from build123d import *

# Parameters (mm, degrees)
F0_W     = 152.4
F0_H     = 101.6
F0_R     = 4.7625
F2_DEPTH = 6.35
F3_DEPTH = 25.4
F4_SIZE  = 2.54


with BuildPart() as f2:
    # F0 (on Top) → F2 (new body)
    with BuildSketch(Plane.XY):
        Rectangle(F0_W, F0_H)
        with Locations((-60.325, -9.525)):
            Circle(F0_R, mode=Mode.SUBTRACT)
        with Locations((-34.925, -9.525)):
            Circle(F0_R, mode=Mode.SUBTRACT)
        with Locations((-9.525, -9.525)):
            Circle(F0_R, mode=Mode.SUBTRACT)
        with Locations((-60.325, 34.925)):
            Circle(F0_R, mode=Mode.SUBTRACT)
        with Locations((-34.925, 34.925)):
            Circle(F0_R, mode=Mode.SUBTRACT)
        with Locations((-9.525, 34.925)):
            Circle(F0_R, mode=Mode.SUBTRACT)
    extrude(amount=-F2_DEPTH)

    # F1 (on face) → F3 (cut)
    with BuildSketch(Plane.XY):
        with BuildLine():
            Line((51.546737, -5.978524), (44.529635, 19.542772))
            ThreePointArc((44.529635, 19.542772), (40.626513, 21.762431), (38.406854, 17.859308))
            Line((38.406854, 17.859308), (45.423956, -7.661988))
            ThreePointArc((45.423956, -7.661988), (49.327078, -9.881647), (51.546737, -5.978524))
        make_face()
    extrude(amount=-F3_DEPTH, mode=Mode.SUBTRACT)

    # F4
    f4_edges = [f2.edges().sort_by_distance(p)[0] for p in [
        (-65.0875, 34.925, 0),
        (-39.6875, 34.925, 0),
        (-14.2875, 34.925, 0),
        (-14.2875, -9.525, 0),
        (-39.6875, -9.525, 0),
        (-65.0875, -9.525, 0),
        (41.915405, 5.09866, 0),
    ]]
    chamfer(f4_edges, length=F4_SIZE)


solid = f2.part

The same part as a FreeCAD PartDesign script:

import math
import FreeCAD as App
import Part
import Sketcher
from FreeCAD import Vector
Q = App.Units.Quantity


def edges_at(feature, points):
    """Names of the edges that pass closest to the given points."""
    edges = feature.Shape.Edges
    near = lambda p: min(range(len(edges)), key=lambda i: edges[i].distToShape(Part.Vertex(*p))[0])
    return sorted({f"Edge{near(p) + 1}" for p in points})

doc = App.newDocument("Part")
params = doc.addObject("Spreadsheet::Sheet", "Params")
for row, (alias, value) in enumerate([
    ("sketch1_width", "6 in"),
    ("sketch1_height", "4 in"),
    ("sketch1_diameter", "0.375 in"),
    ("pad1_length", "0.25 in"),
    ("sketch2_radius", "0.125 in"),
    ("pocket1_length", "1 in"),
    ("chamfer_size", "0.1 in"),
], start=1):
    params.set(f"A{row}", alias)
    params.set(f"B{row}", "=" + value)
    params.setAlias(f"B{row}", alias)

body = doc.addObject("PartDesign::Body", "Body")

# Sketch on XY plane
sketch1 = doc.addObject("Sketcher::SketchObject", "Sketch")
body.addObject(sketch1)
sketch1.AttachmentSupport = (doc.XY_Plane, [""])
sketch1.MapMode = "FlatFace"
sketch1.addGeometry([
    Part.LineSegment(Vector(-76.2, 50.8, 0), Vector(-76.2, -50.8, 0)),  # 0
    Part.LineSegment(Vector(-76.2, -50.8, 0), Vector(76.2, -50.8, 0)),  # 1
    Part.LineSegment(Vector(76.2, -50.8, 0), Vector(76.2, 50.8, 0)),  # 2
    Part.LineSegment(Vector(76.2, 50.8, 0), Vector(-76.2, 50.8, 0)),  # 3
    Part.Circle(Vector(-60.325, -9.525, 0), Vector(0, 0, 1), 4.7625),  # 4
    Part.Circle(Vector(-34.925, -9.525, 0), Vector(0, 0, 1), 4.7625),  # 5
    Part.Circle(Vector(-9.525, -9.525, 0), Vector(0, 0, 1), 4.7625),  # 6
    Part.Circle(Vector(-60.325, 34.925, 0), Vector(0, 0, 1), 4.7625),  # 7
    Part.Circle(Vector(-34.925, 34.925, 0), Vector(0, 0, 1), 4.7625),  # 8
    Part.Circle(Vector(-9.525, 34.925, 0), Vector(0, 0, 1), 4.7625),  # 9
], False)
sketch1.addConstraint([
    Sketcher.Constraint("Coincident", 0, 2, 1, 1),
    Sketcher.Constraint("Coincident", 1, 2, 2, 1),
    Sketcher.Constraint("Coincident", 2, 2, 3, 1),
    Sketcher.Constraint("Coincident", 3, 2, 0, 1),
    Sketcher.Constraint("Vertical", 0),
    Sketcher.Constraint("Horizontal", 1),
    Sketcher.Constraint("Vertical", 2),
    Sketcher.Constraint("Horizontal", 3),
    Sketcher.Constraint("Equal", 4, 5),
    Sketcher.Constraint("Equal", 5, 6),
    Sketcher.Constraint("Equal", 6, 7),
    Sketcher.Constraint("Equal", 7, 8),
    Sketcher.Constraint("Equal", 8, 9),
    Sketcher.Constraint("Symmetric", 0, 2, 2, 2, -1, 1),
    Sketcher.Constraint("Horizontal", 4, 3, 5, 3),
    Sketcher.Constraint("Horizontal", 5, 3, 6, 3),
    Sketcher.Constraint("Horizontal", 7, 3, 8, 3),
    Sketcher.Constraint("Horizontal", 8, 3, 9, 3),
    Sketcher.Constraint("Vertical", 4, 3, 7, 3),
    Sketcher.Constraint("Vertical", 5, 3, 8, 3),
    Sketcher.Constraint("Vertical", 6, 3, 9, 3),
    Sketcher.Constraint("DistanceX", 1, 1, 1, 2, Q("6 in")),
    Sketcher.Constraint("DistanceY", 0, 2, 0, 1, Q("4 in")),
    Sketcher.Constraint("Diameter", 4, Q("0.375 in")),
    Sketcher.Constraint("DistanceX", 4, 3, 5, 3, Q("1 in")),
    Sketcher.Constraint("DistanceX", 5, 3, 6, 3, Q("1 in")),
    Sketcher.Constraint("DistanceY", 4, 3, 7, 3, Q("1.75 in")),
    Sketcher.Constraint("DistanceX", 4, 3, -1, 1, Q("2.375 in")),
    Sketcher.Constraint("DistanceY", 4, 3, -1, 1, Q("0.375 in")),
])
sketch1.setExpression("Constraints[21]", "Params.sketch1_width")
sketch1.setExpression("Constraints[22]", "Params.sketch1_height")
sketch1.setExpression("Constraints[23]", "Params.sketch1_diameter")
pad1 = doc.addObject("PartDesign::Pad", "Pad")
body.addObject(pad1)
pad1.Profile = sketch1
pad1.setExpression("Length", "Params.pad1_length")
pad1.Reversed = True

# Sketch on XY plane
sketch2 = doc.addObject("Sketcher::SketchObject", "Sketch001")
body.addObject(sketch2)
sketch2.AttachmentSupport = (doc.XY_Plane, [""])
sketch2.MapMode = "FlatFace"
sketch2.addGeometry([
    Part.LineSegment(Vector(51.546737, -5.978524, 0), Vector(44.529635, 19.542772, 0)),
    Part.ArcOfCircle(Part.Circle(Vector(41.468244, 18.70104, 0), Vector(0, 0, 1), 3.175), math.radians(15.373628), math.radians(195.373641)),
    Part.LineSegment(Vector(38.406854, 17.859308, 0), Vector(45.423956, -7.661988, 0)),
    Part.ArcOfCircle(Part.Circle(Vector(48.485347, -6.820256, 0), Vector(0, 0, 1), 3.175), math.radians(-164.626372), math.radians(15.373641)),
], False)
sketch2.addConstraint([
    Sketcher.Constraint("Tangent", 0, 2, 1, 1),
    Sketcher.Constraint("Tangent", 1, 2, 2, 1),
    Sketcher.Constraint("Tangent", 2, 2, 3, 1),
    Sketcher.Constraint("Tangent", 3, 2, 0, 1),
    Sketcher.Constraint("Equal", 1, 3),
    Sketcher.Constraint("Radius", 1, Q("0.125 in")),
    Sketcher.Constraint("Distance", 0, Q("26.468401 mm")),
    Sketcher.Constraint("DistanceY", -1, 1, 1, 3, Q("18.70104 mm")),
    Sketcher.Constraint("DistanceY", -1, 1, 0, 2, Q("19.542772 mm")),
    Sketcher.Constraint("DistanceX", -1, 1, 1, 3, Q("41.468244 mm")),
])
sketch2.setExpression("Constraints[5]", "Params.sketch2_radius")
pocket1 = doc.addObject("PartDesign::Pocket", "Pocket")
body.addObject(pocket1)
pocket1.Profile = sketch2
pocket1.setExpression("Length", "Params.pocket1_length")
doc.recompute()

chamfer = doc.addObject("PartDesign::Chamfer", "Chamfer")
body.addObject(chamfer)
chamfer.Base = (pocket1, edges_at(pocket1, [
    (-65.088, 34.925, 0),
    (-39.688, 34.925, 0),
    (-14.287, 34.925, 0),
    (-14.287, -9.525, 0),
    (-39.688, -9.525, 0),
    (-65.088, -9.525, 0),
    (41.915, 5.099, 0),
]))
chamfer.setExpression("Size", "Params.chamfer_size")

doc.recompute()
